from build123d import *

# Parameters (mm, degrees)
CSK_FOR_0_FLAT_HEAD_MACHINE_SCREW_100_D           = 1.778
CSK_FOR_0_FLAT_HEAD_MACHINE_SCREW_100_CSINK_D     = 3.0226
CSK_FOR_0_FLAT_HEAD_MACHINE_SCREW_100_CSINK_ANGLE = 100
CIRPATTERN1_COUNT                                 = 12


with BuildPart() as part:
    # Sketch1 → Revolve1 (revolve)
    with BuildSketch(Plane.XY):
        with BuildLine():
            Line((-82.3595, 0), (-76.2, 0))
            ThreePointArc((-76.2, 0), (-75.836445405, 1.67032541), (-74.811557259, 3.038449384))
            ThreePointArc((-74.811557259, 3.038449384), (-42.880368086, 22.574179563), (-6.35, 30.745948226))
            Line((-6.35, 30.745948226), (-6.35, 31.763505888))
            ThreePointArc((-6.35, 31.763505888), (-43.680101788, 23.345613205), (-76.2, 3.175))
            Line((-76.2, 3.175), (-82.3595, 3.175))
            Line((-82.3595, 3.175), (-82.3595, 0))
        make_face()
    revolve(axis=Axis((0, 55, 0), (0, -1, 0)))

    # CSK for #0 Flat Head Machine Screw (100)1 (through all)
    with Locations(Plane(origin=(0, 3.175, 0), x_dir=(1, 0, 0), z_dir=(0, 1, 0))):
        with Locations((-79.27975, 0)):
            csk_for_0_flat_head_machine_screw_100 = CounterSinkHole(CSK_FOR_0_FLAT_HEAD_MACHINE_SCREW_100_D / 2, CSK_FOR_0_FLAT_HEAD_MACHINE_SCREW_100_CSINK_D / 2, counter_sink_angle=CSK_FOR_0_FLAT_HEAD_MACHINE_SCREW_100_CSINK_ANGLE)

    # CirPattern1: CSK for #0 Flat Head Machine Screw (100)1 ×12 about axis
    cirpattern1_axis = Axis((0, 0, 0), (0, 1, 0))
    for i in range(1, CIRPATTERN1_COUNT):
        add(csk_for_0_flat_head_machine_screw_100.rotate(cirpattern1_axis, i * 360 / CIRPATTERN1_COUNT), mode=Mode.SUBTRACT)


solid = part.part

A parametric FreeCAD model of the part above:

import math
import FreeCAD as App
import Part
import Sketcher
from FreeCAD import Vector
Q = App.Units.Quantity

doc = App.newDocument("Part")
body = doc.addObject("PartDesign::Body", "Body")

# Sketch on XY plane
sketch1 = doc.addObject("Sketcher::SketchObject", "Sketch")
body.addObject(sketch1)
sketch1.AttachmentSupport = (doc.XY_Plane, [""])
sketch1.MapMode = "FlatFace"
sketch1.addGeometry(Part.LineSegment(Vector(-82.4, 0, 0), Vector(-76.2, 0, 0)), False)
sketch1.addGeometry(Part.ArcOfCircle(Part.Circle(Vector(-72.2, 0, 0), Vector(0, 0, 1), 4), math.radians(131), math.radians(180)), False)
sketch1.addGeometry(Part.ArcOfCircle(Part.Circle(Vector(0, -83.4, 0), Vector(0, 0, 1), 114.3), math.radians(93), math.radians(131)), False)
sketch1.addGeometry(Part.LineSegment(Vector(-6.3, 30.7, 0), Vector(-6.3, 31.8, 0)), False)
sketch1.addGeometry(Part.ArcOfCircle(Part.Circle(Vector(0, -83.4, 0), Vector(0, 0, 1), 115.3), math.radians(93), math.radians(131)), False)
sketch1.addGeometry(Part.LineSegment(Vector(-76.2, 3.2, 0), Vector(-82.4, 3.2, 0)), False)
sketch1.addGeometry(Part.LineSegment(Vector(-82.4, 3.2, 0), Vector(-82.4, 0, 0)), False)
sketch1.addConstraint(Sketcher.Constraint("Coincident", 0, 2, 1, 2))
sketch1.addConstraint(Sketcher.Constraint("Tangent", 1, 1, 2, 2))
sketch1.addConstraint(Sketcher.Constraint("Coincident", 2, 1, 3, 1))
sketch1.addConstraint(Sketcher.Constraint("Coincident", 3, 2, 4, 1))
sketch1.addConstraint(Sketcher.Constraint("Coincident", 4, 2, 5, 1))
sketch1.addConstraint(Sketcher.Constraint("Coincident", 5, 2, 6, 1))
sketch1.addConstraint(Sketcher.Constraint("Coincident", 6, 2, 0, 1))
sketch1.addConstraint(Sketcher.Constraint("Horizontal", 0))
sketch1.addConstraint(Sketcher.Constraint("Vertical", 3))
sketch1.addConstraint(Sketcher.Constraint("Horizontal", 5))
sketch1.addConstraint(Sketcher.Constraint("Vertical", 6))
sketch1.addConstraint(Sketcher.Constraint("Coincident", 4, 3, 2, 3))
sketch1.addConstraint(Sketcher.Constraint("PointOnObject", 1, 3, -1))
sketch1.addConstraint(Sketcher.Constraint("PointOnObject", 2, 3, -2))
sketch1.addConstraint(Sketcher.Constraint("PointOnObject", 0, 2, -1))
sketch1.addConstraint(Sketcher.Constraint("Vertical", 0, 2, 4, 2))
sketch1.addConstraint(Sketcher.Constraint("Radius", 2, Q("4.5 in")))
sketch1.addConstraint(Sketcher.Constraint("Radius", 4, Q("4.54 in")))
sketch1.addConstraint(Sketcher.Constraint("DistanceX", 0, 2, -1, 1, Q("3 in")))
sketch1.addConstraint(Sketcher.Constraint("DistanceY", 6, 2, 6, 1, Q("0.125 in")))
sketch1.addConstraint(Sketcher.Constraint("DistanceX", 2, 1, -1, 1, Q("0.25 in")))
sketch1.addConstraint(Sketcher.Constraint("DistanceX", 0, 1, 0, 2, Q("0.2425 in")))
revolution = doc.addObject("PartDesign::Revolution", "Revolution")
body.addObject(revolution)
revolution.Profile = sketch1
revolution.ReferenceAxis = (sketch1, ["V_Axis"])
revolution.Angle = 360

# Sketch on XZ plane
sketch2 = doc.addObject("Sketcher::SketchObject", "Sketch001")
body.addObject(sketch2)
sketch2.AttachmentSupport = (doc.XZ_Plane, [""])
sketch2.MapMode = "FlatFace"
sketch2.AttachmentOffset = App.Placement(Vector(0, 0, -0.125 * 25.4), App.Rotation())
sketch2.addGeometry(Part.Circle(Vector(-79.3, 0, 0), Vector(0, 0, 1), 0.9), False)
sketch2.addConstraint(Sketcher.Constraint("PointOnObject", 0, 3, -1))
sketch2.addConstraint(Sketcher.Constraint("Diameter", 0, Q("0.07 in")))
sketch2.addConstraint(Sketcher.Constraint("DistanceX", 0, 3, -1, 1, 79.27975))
doc.recompute()
hole = doc.addObject("PartDesign::Hole", "Hole")
body.addObject(hole)
hole.Profile = sketch2
hole.ThreadType = "None"
hole.Diameter = Q("0.07 in")
hole.DepthType = "ThroughAll"
hole.HoleCutType = "Countersink"
hole.HoleCutDiameter = Q("0.119 in")
hole.HoleCutCountersinkAngle = 100
hole.Reversed = True
doc.recompute()

polarpattern = doc.addObject("PartDesign::PolarPattern", "PolarPattern")
body.addObject(polarpattern)
polarpattern.Originals = [hole]
polarpattern.Axis = (doc.Y_Axis, [""])
polarpattern.Angle = 360
polarpattern.Occurrences = 12
body.Tip = polarpattern

doc.recompute()
